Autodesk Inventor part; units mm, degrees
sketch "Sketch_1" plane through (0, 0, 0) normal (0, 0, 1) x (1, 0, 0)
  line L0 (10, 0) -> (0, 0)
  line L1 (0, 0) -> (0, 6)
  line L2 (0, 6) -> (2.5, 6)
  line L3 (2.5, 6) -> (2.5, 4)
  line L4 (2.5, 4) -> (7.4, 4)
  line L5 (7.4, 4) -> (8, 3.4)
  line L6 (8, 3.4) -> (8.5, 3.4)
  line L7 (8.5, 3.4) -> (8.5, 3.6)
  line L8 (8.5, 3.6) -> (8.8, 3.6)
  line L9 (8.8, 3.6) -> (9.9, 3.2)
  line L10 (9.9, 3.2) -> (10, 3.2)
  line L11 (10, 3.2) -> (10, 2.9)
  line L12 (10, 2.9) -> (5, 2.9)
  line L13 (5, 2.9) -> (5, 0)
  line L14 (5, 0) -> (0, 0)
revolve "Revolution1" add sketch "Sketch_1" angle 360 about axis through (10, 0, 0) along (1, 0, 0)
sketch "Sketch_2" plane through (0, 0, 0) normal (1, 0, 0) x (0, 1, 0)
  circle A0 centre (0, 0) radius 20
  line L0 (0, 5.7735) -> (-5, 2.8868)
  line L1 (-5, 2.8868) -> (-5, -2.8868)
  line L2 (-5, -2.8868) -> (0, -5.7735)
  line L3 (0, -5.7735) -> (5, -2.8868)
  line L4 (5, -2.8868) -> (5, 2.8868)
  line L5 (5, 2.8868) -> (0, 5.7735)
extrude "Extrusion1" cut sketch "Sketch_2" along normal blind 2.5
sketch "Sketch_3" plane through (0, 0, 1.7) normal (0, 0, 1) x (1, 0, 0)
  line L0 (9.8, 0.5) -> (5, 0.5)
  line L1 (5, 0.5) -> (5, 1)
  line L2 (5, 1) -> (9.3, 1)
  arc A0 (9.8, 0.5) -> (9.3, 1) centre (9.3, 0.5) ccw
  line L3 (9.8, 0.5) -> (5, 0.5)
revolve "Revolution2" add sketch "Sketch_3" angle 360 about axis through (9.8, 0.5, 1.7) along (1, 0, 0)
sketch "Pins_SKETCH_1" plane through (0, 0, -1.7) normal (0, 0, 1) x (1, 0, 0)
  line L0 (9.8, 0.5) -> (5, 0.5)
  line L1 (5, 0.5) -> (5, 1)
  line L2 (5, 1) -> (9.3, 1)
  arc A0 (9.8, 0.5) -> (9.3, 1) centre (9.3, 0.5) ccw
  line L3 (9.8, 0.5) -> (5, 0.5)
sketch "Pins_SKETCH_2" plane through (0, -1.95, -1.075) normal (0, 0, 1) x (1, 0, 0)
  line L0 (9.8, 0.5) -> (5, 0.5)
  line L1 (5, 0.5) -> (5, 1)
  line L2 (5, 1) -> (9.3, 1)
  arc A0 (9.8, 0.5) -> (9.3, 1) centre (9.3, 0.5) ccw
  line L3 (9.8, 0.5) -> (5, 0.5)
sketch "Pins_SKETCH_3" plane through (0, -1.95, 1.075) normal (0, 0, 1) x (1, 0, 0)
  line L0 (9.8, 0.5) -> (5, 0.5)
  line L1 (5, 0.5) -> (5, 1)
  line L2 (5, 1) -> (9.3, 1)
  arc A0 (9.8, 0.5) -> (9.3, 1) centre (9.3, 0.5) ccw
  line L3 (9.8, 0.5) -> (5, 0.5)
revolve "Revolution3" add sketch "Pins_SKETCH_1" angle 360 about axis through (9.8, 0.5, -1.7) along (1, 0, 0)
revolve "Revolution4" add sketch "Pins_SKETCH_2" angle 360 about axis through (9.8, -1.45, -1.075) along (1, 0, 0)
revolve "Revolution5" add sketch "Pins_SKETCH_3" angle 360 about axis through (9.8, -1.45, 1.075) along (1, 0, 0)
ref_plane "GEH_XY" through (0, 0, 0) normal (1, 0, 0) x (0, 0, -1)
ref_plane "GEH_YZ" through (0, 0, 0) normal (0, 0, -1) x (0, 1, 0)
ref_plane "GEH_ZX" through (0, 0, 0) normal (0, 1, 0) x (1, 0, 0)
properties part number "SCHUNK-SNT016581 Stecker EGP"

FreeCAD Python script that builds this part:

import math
import FreeCAD as App
import Part
import Sketcher
from FreeCAD import Vector
Q = App.Units.Quantity


def add_polygon(sketch, points):
    """Adds a closed chain of lines whose ends are joined by coincident constraints."""
    first, n = sketch.GeometryCount, len(points)
    for a, b in zip(points, points[1:] + points[:1]):
        sketch.addGeometry(Part.LineSegment(App.Vector(*a, 0), App.Vector(*b, 0)), False)
    for i in range(n):
        sketch.addConstraint(Sketcher.Constraint("Coincident", first + i, 2, first + (i + 1) % n, 1))

doc = App.newDocument("Part")
body = doc.addObject("PartDesign::Body", "Body")

# Sketch on XY plane
sketch1 = body.newObject("Sketcher::SketchObject", "Sketch")
sketch1.AttachmentSupport = (doc.getObject("XY_Plane"), [""])
sketch1.MapMode = "FlatFace"
add_polygon(sketch1, [(0, 0), (5, 0), (5, 2.9), (10, 2.9), (10, 3.2), (9.9, 3.2), (8.8, 3.6), (8.5, 3.6), (8.5, 3.4), (8, 3.4), (7.4, 4), (2.5, 4), (2.5, 6), (0, 6)])  # lines 0-13
sketch1.addConstraint([
    Sketcher.Constraint("Horizontal", 0),
    Sketcher.Constraint("Vertical", 1),
    Sketcher.Constraint("Horizontal", 2),
    Sketcher.Constraint("Vertical", 3),
    Sketcher.Constraint("Horizontal", 4),
    Sketcher.Constraint("Horizontal", 6),
    Sketcher.Constraint("Vertical", 7),
    Sketcher.Constraint("Horizontal", 8),
    Sketcher.Constraint("Horizontal", 10),
    Sketcher.Constraint("Vertical", 11),
    Sketcher.Constraint("Horizontal", 12),
    Sketcher.Constraint("Vertical", 13),
    Sketcher.Constraint("Coincident", 13, 2, -1, 1),
    Sketcher.Constraint("Equal", 0, 2),
    Sketcher.Constraint("Equal", 6, 3),
    Sketcher.Constraint("DistanceX", 0, 1, 0, 2, Q("5 mm")),
    Sketcher.Constraint("DistanceY", 11, 1, 11, 2, Q("2 mm")),
    Sketcher.Constraint("DistanceY", 13, 2, 13, 1, Q("6 mm")),
    Sketcher.Constraint("Angle", 9, Q("135 deg")),
    Sketcher.Constraint("DistanceX", 4, 2, 4, 1, Q("0.1 mm")),
    Sketcher.Constraint("DistanceX", 6, 2, 6, 1, Q("0.3 mm")),
    Sketcher.Constraint("DistanceX", 8, 2, 8, 1, Q("0.5 mm")),
    Sketcher.Constraint("DistanceX", 10, 2, 10, 1, Q("4.9 mm")),
    Sketcher.Constraint("DistanceX", 12, 2, 12, 1, Q("2.5 mm")),
    Sketcher.Constraint("DistanceY", 1, 1, 1, 2, Q("2.9 mm")),
    Sketcher.Constraint("DistanceY", 7, 2, 7, 1, Q("0.2 mm")),
    Sketcher.Constraint("DistanceX", -1, 1, 8, 2, Q("8 mm")),
])
revolution = body.newObject("PartDesign::Revolution", "Revolution")
revolution.Profile = sketch1
revolution.ReferenceAxis = (sketch1, ["H_Axis"])
revolution.Angle = 360

# Sketch on YZ plane
sketch2 = body.newObject("Sketcher::SketchObject", "Sketch001")
sketch2.AttachmentSupport = (doc.getObject("YZ_Plane"), [""])
sketch2.MapMode = "FlatFace"
sketch2.addGeometry(Part.Circle(Vector(0, 0, 0), Vector(0, 0, 1), 20), False)  # 0
add_polygon(sketch2, [(-5, 3), (0, 6), (5, 3), (5, -3), (0, -6), (-5, -3)])  # lines 1-6
sketch2.addConstraint([
    Sketcher.Constraint("Vertical", 3),
    Sketcher.Constraint("Vertical", 6),
    Sketcher.Constraint("Coincident", 0, 3, -1, 1),
    Sketcher.Constraint("Symmetric", 1, 2, 4, 2, -1, 1),
    Sketcher.Constraint("Symmetric", 2, 2, 5, 2, -1, 1),
    Sketcher.Constraint("PointOnObject", 1, 2, -2),
    Sketcher.Constraint("Parallel", 1, 4),
    Sketcher.Constraint("Horizontal", 3, 2, 5, 2),
    Sketcher.Constraint("Diameter", 0, Q("40 mm")),
    Sketcher.Constraint("Angle", 1, Q("29.9996 deg")),
    Sketcher.Constraint("DistanceX", -1, 1, 2, 2, Q("5 mm")),
    Sketcher.Constraint("DistanceY", 3, 2, 3, 1, Q("5.7736 mm")),
])
pocket1 = body.newObject("PartDesign::Pocket", "Pocket")
pocket1.Profile = sketch2
pocket1.Length = 2.5
pocket1.Reversed = True

# Sketch on XY plane
sketch3 = body.newObject("Sketcher::SketchObject", "Sketch002")
sketch3.AttachmentSupport = (doc.getObject("XY_Plane"), [""])
sketch3.MapMode = "FlatFace"
sketch3.AttachmentOffset = App.Placement(Vector(0, 0, 1.7), App.Rotation())
sketch3.addGeometry([
    Part.LineSegment(Vector(5, 0.5, 0), Vector(9.8, 0.5, 0)),
    Part.ArcOfCircle(Part.Circle(Vector(9.3, 0.5, 0), Vector(0, 0, 1), 0.5), math.radians(0), math.radians(90)),
    Part.LineSegment(Vector(9.3, 1, 0), Vector(5, 1, 0)),
    Part.LineSegment(Vector(5, 1, 0), Vector(5, 0.5, 0)),
], False)
sketch3.addGeometry(Part.LineSegment(Vector(5, 0.5, 0), Vector(9.8, 0.5, 0)), True)  # axis
sketch3.addConstraint([
    Sketcher.Constraint("Coincident", 0, 2, 1, 1),
    Sketcher.Constraint("Tangent", 1, 2, 2, 1),
    Sketcher.Constraint("Coincident", 2, 2, 3, 1),
    Sketcher.Constraint("Coincident", 3, 2, 0, 1),
    Sketcher.Constraint("Horizontal", 0),
    Sketcher.Constraint("Horizontal", 2),
    Sketcher.Constraint("Vertical", 3),
    Sketcher.Constraint("Horizontal", 4),
    Sketcher.Constraint("Coincident", 4, 1, 3, 2),
    Sketcher.Constraint("Horizontal", 1, 3, 0, 2),
    Sketcher.Constraint("Equal", 0, 4),
    Sketcher.Constraint("Radius", 1, Q("0.5 mm")),
    Sketcher.Constraint("DistanceX", 0, 1, 0, 2, Q("4.8 mm")),
    Sketcher.Constraint("DistanceY", -1, 1, 1, 2, Q("1 mm")),
    Sketcher.Constraint("DistanceX", -1, 1, 2, 2, Q("5 mm")),
])
revolution2 = body.newObject("PartDesign::Revolution", "Revolution001")
revolution2.Profile = sketch3
revolution2.ReferenceAxis = (sketch3, ["Axis0"])
revolution2.Angle = 360

# Sketch on XY plane
sketch4 = body.newObject("Sketcher::SketchObject", "Sketch003")
sketch4.AttachmentSupport = (doc.getObject("XY_Plane"), [""])
sketch4.MapMode = "FlatFace"
sketch4.AttachmentOffset = App.Placement(Vector(0, 0, -1.7), App.Rotation())
sketch4.addGeometry([
    Part.LineSegment(Vector(5, 0.5, 0), Vector(9.8, 0.5, 0)),
    Part.ArcOfCircle(Part.Circle(Vector(9.3, 0.5, 0), Vector(0, 0, 1), 0.5), math.radians(0), math.radians(90)),
    Part.LineSegment(Vector(9.3, 1, 0), Vector(5, 1, 0)),
    Part.LineSegment(Vector(5, 1, 0), Vector(5, 0.5, 0)),
], False)
sketch4.addGeometry(Part.LineSegment(Vector(5, 0.5, 0), Vector(9.8, 0.5, 0)), True)  # axis
sketch4.addConstraint([
    Sketcher.Constraint("Coincident", 0, 2, 1, 1),
    Sketcher.Constraint("Tangent", 1, 2, 2, 1),
    Sketcher.Constraint("Coincident", 2, 2, 3, 1),
    Sketcher.Constraint("Coincident", 3, 2, 0, 1),
    Sketcher.Constraint("Horizontal", 0),
    Sketcher.Constraint("Horizontal", 2),
    Sketcher.Constraint("Vertical", 3),
    Sketcher.Constraint("Horizontal", 4),
    Sketcher.Constraint("Coincident", 4, 1, 3, 2),
    Sketcher.Constraint("Horizontal", 1, 3, 0, 2),
    Sketcher.Constraint("Equal", 0, 4),
    Sketcher.Constraint("Radius", 1, Q("0.5 mm")),
    Sketcher.Constraint("DistanceX", 0, 1, 0, 2, Q("4.8 mm")),
    Sketcher.Constraint("DistanceY", -1, 1, 1, 2, Q("1 mm")),
    Sketcher.Constraint("DistanceX", -1, 1, 2, 2, Q("5 mm")),
])
revolution3 = body.newObject("PartDesign::Revolution", "Revolution002")
revolution3.Profile = sketch4
revolution3.ReferenceAxis = (sketch4, ["Axis0"])
revolution3.Angle = 360

# Sketch on XY plane
sketch5 = body.newObject("Sketcher::SketchObject", "Sketch004")
sketch5.AttachmentSupport = (doc.getObject("XY_Plane"), [""])
sketch5.MapMode = "FlatFace"
sketch5.AttachmentOffset = App.Placement(Vector(0, 0, -1.075), App.Rotation())
sketch5.addGeometry([
    Part.LineSegment(Vector(5, -1.4, 0), Vector(9.8, -1.4, 0)),
    Part.ArcOfCircle(Part.Circle(Vector(9.3, -1.4, 0), Vector(0, 0, 1), 0.5), math.radians(0), math.radians(90)),
    Part.LineSegment(Vector(9.3, -0.9, 0), Vector(5, -0.9, 0)),
    Part.LineSegment(Vector(5, -0.9, 0), Vector(5, -1.4, 0)),
], False)
sketch5.addGeometry(Part.LineSegment(Vector(5, -1.4, 0), Vector(9.8, -1.4, 0)), True)  # axis
sketch5.addConstraint([
    Sketcher.Constraint("Coincident", 0, 2, 1, 1),
    Sketcher.Constraint("Tangent", 1, 2, 2, 1),
    Sketcher.Constraint("Coincident", 2, 2, 3, 1),
    Sketcher.Constraint("Coincident", 3, 2, 0, 1),
    Sketcher.Constraint("Horizontal", 0),
    Sketcher.Constraint("Horizontal", 2),
    Sketcher.Constraint("Vertical", 3),
    Sketcher.Constraint("Horizontal", 4),
    Sketcher.Constraint("Coincident", 4, 1, 3, 2),
    Sketcher.Constraint("Horizontal", 1, 3, 0, 2),
    Sketcher.Constraint("Equal", 0, 4),
    Sketcher.Constraint("Radius", 1, Q("0.5 mm")),
    Sketcher.Constraint("DistanceX", 0, 1, 0, 2, Q("4.8 mm")),
    Sketcher.Constraint("DistanceX", -1, 1, 2, 2, Q("5 mm")),
    Sketcher.Constraint("DistanceY", 1, 3, -1, 1, Q("1.45 mm")),
])
revolution4 = body.newObject("PartDesign::Revolution", "Revolution003")
revolution4.Profile = sketch5
revolution4.ReferenceAxis = (sketch5, ["Axis0"])
revolution4.Angle = 360

# Sketch on XY plane
sketch6 = body.newObject("Sketcher::SketchObject", "Sketch005")
sketch6.AttachmentSupport = (doc.getObject("XY_Plane"), [""])
sketch6.MapMode = "FlatFace"
sketch6.AttachmentOffset = App.Placement(Vector(0, 0, 1.075), App.Rotation())
sketch6.addGeometry([
    Part.LineSegment(Vector(5, -1.4, 0), Vector(9.8, -1.4, 0)),
    Part.ArcOfCircle(Part.Circle(Vector(9.3, -1.4, 0), Vector(0, 0, 1), 0.5), math.radians(0), math.radians(90)),
    Part.LineSegment(Vector(9.3, -0.9, 0), Vector(5, -0.9, 0)),
    Part.LineSegment(Vector(5, -0.9, 0), Vector(5, -1.4, 0)),
], False)
sketch6.addGeometry(Part.LineSegment(Vector(5, -1.4, 0), Vector(9.8, -1.4, 0)), True)  # axis
sketch6.addConstraint([
    Sketcher.Constraint("Coincident", 0, 2, 1, 1),
    Sketcher.Constraint("Tangent", 1, 2, 2, 1),
    Sketcher.Constraint("Coincident", 2, 2, 3, 1),
    Sketcher.Constraint("Coincident", 3, 2, 0, 1),
    Sketcher.Constraint("Horizontal", 0),
    Sketcher.Constraint("Horizontal", 2),
    Sketcher.Constraint("Vertical", 3),
    Sketcher.Constraint("Horizontal", 4),
    Sketcher.Constraint("Coincident", 4, 1, 3, 2),
    Sketcher.Constraint("Horizontal", 1, 3, 0, 2),
    Sketcher.Constraint("Equal", 0, 4),
    Sketcher.Constraint("Radius", 1, Q("0.5 mm")),
    Sketcher.Constraint("DistanceX", 0, 1, 0, 2, Q("4.8 mm")),
    Sketcher.Constraint("DistanceX", -1, 1, 2, 2, Q("5 mm")),
    Sketcher.Constraint("DistanceY", 1, 3, -1, 1, Q("1.45 mm")),
])
revolution5 = body.newObject("PartDesign::Revolution", "Revolution004")
revolution5.Profile = sketch6
revolution5.ReferenceAxis = (sketch6, ["Axis0"])
revolution5.Angle = 360

doc.recompute()
